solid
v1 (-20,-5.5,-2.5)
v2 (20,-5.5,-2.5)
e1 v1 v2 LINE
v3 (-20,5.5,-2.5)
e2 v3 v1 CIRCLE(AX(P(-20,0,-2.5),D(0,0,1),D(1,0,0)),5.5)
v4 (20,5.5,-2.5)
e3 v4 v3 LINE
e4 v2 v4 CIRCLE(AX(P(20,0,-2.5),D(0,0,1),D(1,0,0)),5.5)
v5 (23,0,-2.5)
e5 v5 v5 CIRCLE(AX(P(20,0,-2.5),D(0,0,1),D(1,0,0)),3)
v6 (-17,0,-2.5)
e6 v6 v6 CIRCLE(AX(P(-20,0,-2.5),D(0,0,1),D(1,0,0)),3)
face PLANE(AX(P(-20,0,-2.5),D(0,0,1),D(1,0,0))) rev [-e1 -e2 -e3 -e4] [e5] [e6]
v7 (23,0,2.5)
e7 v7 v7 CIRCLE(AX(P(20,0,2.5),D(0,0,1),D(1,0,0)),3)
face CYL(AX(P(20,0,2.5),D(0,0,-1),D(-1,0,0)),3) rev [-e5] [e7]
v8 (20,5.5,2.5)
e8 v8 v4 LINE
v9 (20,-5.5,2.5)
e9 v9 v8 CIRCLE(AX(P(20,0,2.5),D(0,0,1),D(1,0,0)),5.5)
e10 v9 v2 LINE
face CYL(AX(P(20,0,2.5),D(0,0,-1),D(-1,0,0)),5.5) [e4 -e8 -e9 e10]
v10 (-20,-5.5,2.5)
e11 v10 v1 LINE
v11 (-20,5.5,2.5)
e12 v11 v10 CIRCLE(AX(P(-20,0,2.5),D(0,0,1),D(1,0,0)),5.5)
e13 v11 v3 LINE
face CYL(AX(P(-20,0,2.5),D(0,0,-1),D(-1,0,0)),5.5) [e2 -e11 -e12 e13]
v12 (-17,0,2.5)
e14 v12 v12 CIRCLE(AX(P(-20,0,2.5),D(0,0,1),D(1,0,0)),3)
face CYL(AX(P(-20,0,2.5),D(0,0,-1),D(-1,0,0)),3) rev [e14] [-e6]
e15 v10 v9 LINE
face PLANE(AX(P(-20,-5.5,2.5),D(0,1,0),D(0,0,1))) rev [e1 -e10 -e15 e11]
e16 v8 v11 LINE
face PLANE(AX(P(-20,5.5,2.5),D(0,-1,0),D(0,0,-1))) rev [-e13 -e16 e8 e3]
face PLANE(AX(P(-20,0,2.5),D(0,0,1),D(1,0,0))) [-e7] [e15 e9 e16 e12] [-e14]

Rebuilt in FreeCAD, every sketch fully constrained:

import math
import FreeCAD as App
import Part
import Sketcher

V = App.Vector

doc = App.newDocument("Part")
body = doc.addObject("PartDesign::Body", "Body")

# Sketch on XY plane
sketch1 = body.newObject("Sketcher::SketchObject", "Sketch")
sketch1.AttachmentSupport = (doc.getObject("XY_Plane"), [""])
sketch1.MapMode = "FlatFace"
sketch1.addGeometry([
    Part.LineSegment(V(20, 5.5, 0), V(-20, 5.5, 0)),  # 0
    Part.ArcOfCircle(Part.Circle(V(-20, 0, 0), V(0, 0, 1), 5.5), math.radians(90), math.radians(270)),  # 1
    Part.LineSegment(V(-20, -5.5, 0), V(20, -5.5, 0)),  # 2
    Part.ArcOfCircle(Part.Circle(V(20, 0, 0), V(0, 0, 1), 5.5), math.radians(-90), math.radians(90)),  # 3
    Part.Circle(V(20, 0, 0), V(0, 0, 1), 3),  # 4
    Part.Circle(V(-20, 0, 0), V(0, 0, 1), 3),  # 5
], False)
sketch1.addConstraint([
    Sketcher.Constraint("Tangent", 0, 2, 1, 1),
    Sketcher.Constraint("Tangent", 1, 2, 2, 1),
    Sketcher.Constraint("Tangent", 2, 2, 3, 1),
    Sketcher.Constraint("Tangent", 3, 2, 0, 1),
    Sketcher.Constraint("Horizontal", 0),
    Sketcher.Constraint("Horizontal", 2),
    Sketcher.Constraint("Coincident", 4, 3, 3, 3),
    Sketcher.Constraint("Coincident", 5, 3, 1, 3),
    Sketcher.Constraint("Equal", 4, 5),
    Sketcher.Constraint("Symmetric", 1, 3, 3, 3, -1, 1),
    Sketcher.Constraint("Diameter", 4, 6.0),
    Sketcher.Constraint("Radius", 1, 5.5),
    Sketcher.Constraint("DistanceX", 0, 2, 0, 1, 40.0),
])
pad1 = body.newObject("PartDesign::Pad", "Pad")
pad1.Profile = sketch1
pad1.Length = 5
pad1.Midplane = True

doc.recompute()
